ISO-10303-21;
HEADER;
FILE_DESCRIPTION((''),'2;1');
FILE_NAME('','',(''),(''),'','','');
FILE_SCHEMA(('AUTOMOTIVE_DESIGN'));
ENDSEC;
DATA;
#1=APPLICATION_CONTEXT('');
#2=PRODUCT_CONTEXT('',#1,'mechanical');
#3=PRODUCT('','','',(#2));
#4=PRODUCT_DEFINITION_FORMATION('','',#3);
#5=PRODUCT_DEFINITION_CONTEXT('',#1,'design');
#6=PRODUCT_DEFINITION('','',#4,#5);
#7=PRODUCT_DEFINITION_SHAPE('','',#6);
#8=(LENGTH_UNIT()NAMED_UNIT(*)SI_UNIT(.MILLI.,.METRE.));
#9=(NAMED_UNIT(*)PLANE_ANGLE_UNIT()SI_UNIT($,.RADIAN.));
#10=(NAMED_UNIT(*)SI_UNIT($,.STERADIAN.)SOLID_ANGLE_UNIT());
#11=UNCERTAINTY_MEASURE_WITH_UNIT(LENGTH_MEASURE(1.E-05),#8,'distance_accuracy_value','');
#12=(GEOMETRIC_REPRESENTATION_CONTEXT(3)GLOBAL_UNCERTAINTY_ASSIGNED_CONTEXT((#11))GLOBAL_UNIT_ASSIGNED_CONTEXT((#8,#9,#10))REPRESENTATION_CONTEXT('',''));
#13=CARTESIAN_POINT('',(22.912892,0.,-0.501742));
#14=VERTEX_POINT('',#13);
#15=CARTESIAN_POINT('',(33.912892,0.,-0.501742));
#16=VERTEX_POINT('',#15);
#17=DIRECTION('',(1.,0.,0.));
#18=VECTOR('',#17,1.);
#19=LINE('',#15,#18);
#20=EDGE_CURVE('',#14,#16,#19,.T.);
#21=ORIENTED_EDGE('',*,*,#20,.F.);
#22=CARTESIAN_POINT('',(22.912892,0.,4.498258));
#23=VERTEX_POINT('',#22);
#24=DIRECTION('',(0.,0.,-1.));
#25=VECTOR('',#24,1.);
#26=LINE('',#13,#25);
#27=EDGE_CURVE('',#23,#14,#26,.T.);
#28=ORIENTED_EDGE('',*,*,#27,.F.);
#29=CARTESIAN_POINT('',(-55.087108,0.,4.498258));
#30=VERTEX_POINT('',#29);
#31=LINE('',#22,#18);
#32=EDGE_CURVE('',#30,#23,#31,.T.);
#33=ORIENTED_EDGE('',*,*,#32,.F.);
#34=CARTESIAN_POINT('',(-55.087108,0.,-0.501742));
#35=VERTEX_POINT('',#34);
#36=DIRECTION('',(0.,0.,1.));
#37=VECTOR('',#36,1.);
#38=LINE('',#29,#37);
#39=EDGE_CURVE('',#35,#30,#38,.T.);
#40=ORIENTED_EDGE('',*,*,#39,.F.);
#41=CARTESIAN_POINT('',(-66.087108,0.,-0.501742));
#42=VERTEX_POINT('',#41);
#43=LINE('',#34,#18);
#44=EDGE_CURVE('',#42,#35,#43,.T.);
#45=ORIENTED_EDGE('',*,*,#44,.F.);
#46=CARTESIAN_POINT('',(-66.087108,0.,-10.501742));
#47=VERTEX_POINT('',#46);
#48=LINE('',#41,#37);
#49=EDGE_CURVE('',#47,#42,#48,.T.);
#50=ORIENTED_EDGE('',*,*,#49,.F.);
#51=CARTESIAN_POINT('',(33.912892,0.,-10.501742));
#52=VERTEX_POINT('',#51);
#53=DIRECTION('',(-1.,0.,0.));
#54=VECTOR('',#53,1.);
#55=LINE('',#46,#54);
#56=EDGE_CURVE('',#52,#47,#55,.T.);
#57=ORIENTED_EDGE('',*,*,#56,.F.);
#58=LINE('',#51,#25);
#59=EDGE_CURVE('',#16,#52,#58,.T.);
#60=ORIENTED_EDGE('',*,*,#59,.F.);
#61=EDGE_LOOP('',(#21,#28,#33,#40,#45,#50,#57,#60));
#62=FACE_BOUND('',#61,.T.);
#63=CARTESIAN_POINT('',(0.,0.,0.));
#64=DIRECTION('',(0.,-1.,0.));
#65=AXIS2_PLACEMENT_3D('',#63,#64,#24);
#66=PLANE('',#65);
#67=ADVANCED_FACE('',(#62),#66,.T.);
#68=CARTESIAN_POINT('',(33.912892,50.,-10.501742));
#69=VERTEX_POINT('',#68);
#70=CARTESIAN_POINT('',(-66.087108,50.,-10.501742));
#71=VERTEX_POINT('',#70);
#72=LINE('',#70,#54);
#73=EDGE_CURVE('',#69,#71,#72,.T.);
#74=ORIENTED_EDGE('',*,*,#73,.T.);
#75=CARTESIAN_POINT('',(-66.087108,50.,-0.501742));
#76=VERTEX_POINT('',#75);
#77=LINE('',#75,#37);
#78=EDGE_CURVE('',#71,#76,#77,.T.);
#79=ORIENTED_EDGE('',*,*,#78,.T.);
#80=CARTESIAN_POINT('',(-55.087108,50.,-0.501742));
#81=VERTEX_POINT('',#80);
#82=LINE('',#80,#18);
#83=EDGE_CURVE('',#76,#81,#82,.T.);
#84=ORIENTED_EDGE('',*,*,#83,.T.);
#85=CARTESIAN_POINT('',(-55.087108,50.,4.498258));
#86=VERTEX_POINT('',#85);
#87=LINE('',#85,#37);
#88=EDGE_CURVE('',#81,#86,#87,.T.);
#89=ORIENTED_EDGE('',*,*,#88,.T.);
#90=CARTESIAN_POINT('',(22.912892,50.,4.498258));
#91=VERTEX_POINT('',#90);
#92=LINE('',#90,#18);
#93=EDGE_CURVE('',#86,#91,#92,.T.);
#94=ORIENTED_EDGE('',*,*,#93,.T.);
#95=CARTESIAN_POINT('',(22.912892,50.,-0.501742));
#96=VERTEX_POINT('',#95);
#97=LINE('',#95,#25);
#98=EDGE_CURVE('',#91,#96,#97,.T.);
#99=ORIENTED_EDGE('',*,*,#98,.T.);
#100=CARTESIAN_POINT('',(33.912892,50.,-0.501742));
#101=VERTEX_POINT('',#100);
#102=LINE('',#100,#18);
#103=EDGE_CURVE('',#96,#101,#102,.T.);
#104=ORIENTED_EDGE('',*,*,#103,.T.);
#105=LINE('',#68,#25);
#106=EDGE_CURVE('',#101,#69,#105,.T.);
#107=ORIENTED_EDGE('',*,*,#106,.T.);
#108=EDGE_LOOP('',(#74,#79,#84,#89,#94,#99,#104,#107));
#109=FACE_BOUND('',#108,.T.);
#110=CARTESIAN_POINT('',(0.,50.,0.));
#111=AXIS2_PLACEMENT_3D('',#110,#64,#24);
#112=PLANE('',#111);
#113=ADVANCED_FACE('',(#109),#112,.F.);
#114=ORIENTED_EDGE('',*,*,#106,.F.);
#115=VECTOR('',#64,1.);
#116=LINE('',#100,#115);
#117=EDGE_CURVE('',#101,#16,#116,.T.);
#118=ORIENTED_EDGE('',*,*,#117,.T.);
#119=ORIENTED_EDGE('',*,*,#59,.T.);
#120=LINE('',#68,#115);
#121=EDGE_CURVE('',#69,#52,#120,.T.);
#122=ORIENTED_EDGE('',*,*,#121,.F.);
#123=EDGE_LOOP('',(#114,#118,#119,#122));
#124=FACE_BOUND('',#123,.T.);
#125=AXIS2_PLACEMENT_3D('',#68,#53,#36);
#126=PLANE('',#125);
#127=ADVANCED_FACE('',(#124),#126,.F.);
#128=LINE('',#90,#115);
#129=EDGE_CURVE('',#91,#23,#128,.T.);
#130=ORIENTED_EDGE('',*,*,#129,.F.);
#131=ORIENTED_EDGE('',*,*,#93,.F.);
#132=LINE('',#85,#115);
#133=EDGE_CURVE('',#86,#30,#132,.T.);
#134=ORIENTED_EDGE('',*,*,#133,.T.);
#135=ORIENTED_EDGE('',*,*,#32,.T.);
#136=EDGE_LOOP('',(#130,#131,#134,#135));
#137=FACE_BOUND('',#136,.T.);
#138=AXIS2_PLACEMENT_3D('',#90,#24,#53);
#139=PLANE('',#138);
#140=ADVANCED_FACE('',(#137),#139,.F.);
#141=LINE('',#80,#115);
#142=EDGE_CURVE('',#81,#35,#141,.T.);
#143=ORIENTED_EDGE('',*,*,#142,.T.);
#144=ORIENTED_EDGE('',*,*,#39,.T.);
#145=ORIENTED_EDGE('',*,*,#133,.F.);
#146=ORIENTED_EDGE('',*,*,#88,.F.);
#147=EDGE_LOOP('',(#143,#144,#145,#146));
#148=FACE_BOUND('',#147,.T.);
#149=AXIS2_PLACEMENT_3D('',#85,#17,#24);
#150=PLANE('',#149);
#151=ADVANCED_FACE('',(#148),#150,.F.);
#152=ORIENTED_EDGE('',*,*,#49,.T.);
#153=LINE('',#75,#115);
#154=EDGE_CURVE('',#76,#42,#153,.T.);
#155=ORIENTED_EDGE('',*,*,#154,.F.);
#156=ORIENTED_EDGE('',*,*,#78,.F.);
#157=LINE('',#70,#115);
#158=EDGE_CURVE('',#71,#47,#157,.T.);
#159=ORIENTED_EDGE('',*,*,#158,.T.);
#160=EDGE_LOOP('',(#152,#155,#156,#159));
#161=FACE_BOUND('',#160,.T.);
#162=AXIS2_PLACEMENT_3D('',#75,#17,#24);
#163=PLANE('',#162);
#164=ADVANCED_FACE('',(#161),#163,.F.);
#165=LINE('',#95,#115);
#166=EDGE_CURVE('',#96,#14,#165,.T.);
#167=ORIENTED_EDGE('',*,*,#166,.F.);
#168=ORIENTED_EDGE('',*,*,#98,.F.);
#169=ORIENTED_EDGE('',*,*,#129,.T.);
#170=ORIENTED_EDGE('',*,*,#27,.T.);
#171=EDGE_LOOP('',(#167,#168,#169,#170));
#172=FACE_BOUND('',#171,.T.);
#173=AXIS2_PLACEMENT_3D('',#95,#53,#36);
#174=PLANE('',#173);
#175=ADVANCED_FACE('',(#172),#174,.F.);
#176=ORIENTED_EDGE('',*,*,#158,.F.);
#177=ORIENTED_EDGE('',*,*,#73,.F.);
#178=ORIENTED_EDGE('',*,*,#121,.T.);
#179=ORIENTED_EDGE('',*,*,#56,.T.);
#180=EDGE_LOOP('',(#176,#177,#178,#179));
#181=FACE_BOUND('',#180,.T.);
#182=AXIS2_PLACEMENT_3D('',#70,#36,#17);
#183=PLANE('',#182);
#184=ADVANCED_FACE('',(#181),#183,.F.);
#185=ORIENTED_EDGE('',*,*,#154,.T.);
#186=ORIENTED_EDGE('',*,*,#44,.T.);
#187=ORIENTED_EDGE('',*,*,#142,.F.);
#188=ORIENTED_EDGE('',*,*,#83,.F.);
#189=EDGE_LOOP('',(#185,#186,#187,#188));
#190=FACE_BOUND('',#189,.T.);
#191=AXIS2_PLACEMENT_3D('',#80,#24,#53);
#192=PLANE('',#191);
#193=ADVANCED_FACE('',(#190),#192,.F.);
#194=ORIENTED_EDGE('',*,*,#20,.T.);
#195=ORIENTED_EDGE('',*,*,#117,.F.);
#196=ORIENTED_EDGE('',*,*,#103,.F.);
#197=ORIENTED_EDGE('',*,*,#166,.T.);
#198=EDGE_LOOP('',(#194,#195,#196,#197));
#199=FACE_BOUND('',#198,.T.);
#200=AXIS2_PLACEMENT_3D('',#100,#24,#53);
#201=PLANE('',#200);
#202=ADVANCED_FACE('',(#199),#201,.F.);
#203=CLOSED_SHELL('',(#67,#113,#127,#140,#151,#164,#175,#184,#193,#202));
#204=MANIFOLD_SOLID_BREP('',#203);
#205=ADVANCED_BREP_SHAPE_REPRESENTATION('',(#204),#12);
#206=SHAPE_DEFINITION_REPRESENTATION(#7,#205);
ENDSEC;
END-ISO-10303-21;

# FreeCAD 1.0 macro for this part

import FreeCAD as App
import Part
import Sketcher

V = App.Vector


def add_polygon(sketch, points):
    """Adds a closed chain of lines whose ends are joined by coincident constraints."""
    first, n = sketch.GeometryCount, len(points)
    for a, b in zip(points, points[1:] + points[:1]):
        sketch.addGeometry(Part.LineSegment(App.Vector(*a, 0), App.Vector(*b, 0)), False)
    for i in range(n):
        sketch.addConstraint(Sketcher.Constraint("Coincident", first + i, 2, first + (i + 1) % n, 1))

doc = App.newDocument("Part")
body = doc.addObject("PartDesign::Body", "Body")

# Sketch on XZ plane
sketch1 = body.newObject("Sketcher::SketchObject", "Sketch")
sketch1.AttachmentSupport = (doc.getObject("XZ_Plane"), [""])
sketch1.MapMode = "FlatFace"
add_polygon(sketch1, [(33.912892, -10.501742), (-66.087108, -10.501742), (-66.087108, -0.501742), (-55.087108, -0.501742), (-55.087108, 4.498258), (22.912892, 4.498258), (22.912892, -0.501742), (33.912892, -0.501742)])  # lines 0-7
sketch1.addConstraint([
    Sketcher.Constraint("Horizontal", 0),
    Sketcher.Constraint("Vertical", 1),
    Sketcher.Constraint("Horizontal", 2),
    Sketcher.Constraint("Vertical", 3),
    Sketcher.Constraint("Horizontal", 4),
    Sketcher.Constraint("Vertical", 5),
    Sketcher.Constraint("Horizontal", 6),
    Sketcher.Constraint("Vertical", 7),
    Sketcher.Constraint("Horizontal", 2, 2, 5, 2),
    Sketcher.Constraint("Equal", 2, 6),
    Sketcher.Constraint("DistanceX", 0, 2, 0, 1, 100.0),
    Sketcher.Constraint("DistanceX", 2, 1, 2, 2, 11.0),
    Sketcher.Constraint("DistanceY", 1, 1, 1, 2, 10.0),
    Sketcher.Constraint("DistanceY", 3, 1, 3, 2, 5.0),
    Sketcher.Constraint("DistanceX", 0, 2, -1, 1, 66.087108),
    Sketcher.Constraint("DistanceY", 0, 2, -1, 1, 10.501742),
])
pad1 = body.newObject("PartDesign::Pad", "Pad")
pad1.Profile = sketch1
pad1.Length = 50
pad1.Reversed = True

doc.recompute()
